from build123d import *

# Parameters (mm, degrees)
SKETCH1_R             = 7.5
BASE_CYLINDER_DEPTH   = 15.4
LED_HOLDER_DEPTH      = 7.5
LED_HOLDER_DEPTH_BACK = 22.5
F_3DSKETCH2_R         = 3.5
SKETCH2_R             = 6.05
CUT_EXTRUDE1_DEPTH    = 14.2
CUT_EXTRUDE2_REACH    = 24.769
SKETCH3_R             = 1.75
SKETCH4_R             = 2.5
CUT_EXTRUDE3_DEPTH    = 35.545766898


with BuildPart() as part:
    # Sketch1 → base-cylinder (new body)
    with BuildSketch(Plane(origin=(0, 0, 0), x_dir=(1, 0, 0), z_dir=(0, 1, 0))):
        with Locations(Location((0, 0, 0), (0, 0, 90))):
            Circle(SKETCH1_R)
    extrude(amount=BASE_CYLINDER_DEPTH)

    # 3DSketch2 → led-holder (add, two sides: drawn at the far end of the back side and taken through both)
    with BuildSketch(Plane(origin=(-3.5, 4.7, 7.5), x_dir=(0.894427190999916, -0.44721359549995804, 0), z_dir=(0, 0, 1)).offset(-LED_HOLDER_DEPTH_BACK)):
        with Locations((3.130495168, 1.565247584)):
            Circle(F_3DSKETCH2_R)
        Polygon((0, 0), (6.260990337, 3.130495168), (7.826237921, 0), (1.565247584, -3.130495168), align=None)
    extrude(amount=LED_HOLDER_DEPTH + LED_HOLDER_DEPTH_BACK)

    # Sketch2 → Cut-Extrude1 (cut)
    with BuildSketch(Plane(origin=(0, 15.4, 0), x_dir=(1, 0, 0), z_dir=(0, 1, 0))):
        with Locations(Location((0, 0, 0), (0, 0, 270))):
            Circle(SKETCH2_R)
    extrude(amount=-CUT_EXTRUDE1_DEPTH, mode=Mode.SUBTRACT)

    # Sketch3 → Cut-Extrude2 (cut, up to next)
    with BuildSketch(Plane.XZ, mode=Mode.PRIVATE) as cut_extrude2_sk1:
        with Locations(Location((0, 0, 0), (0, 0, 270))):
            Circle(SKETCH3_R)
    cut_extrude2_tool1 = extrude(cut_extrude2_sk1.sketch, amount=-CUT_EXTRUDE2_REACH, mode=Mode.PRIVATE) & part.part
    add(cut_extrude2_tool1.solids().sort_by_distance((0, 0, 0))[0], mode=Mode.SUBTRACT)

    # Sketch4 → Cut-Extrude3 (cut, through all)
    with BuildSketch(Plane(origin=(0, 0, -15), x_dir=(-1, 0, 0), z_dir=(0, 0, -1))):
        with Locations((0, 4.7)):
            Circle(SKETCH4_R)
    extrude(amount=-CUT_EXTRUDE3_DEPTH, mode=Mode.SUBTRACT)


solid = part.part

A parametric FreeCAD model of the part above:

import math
import FreeCAD as App
import Part
import Sketcher
from FreeCAD import Vector
Q = App.Units.Quantity

doc = App.newDocument("Part")
body = doc.addObject("PartDesign::Body", "Body")

sketch1 = body.newObject("Sketcher::SketchObject", "Sketch")
sketch1.AttachmentSupport = (doc.getObject("XZ_Plane"), [""])
sketch1.MapMode = "FlatFace"
sketch1.addGeometry(Part.Circle(Vector(0, 0, 0), Vector(0, 0, 1), 7.5), False)
sketch1.addConstraint([
    Sketcher.Constraint("Coincident", 0, 3, -1, 1),
    Sketcher.Constraint("Diameter", 0, Q("15 mm")),
])
pad1 = body.newObject("PartDesign::Pad", "Pad")
pad1.Profile = sketch1
pad1.Length = 15.4
pad1.Reversed = True

sketch2 = body.newObject("Sketcher::SketchObject", "Sketch001")
sketch2.AttachmentSupport = (doc.getObject("XY_Plane"), [""])
sketch2.MapMode = "FlatFace"
sketch2.AttachmentOffset = App.Placement(Vector(0, 0, 7.5), App.Rotation())
sketch2.addGeometry([
    Part.LineSegment(Vector(3.5, 1.2, 0), Vector(3.5, 4.7, 0)),
    Part.ArcOfCircle(Part.Circle(Vector(0, 4.7, 0), Vector(0, 0, 1), 3.5), math.radians(0), math.radians(180)),
    Part.LineSegment(Vector(-3.5, 4.7, 0), Vector(-3.5, 1.2, 0)),
    Part.LineSegment(Vector(-3.5, 1.2, 0), Vector(3.5, 1.2, 0)),
], False)
sketch2.addConstraint([
    Sketcher.Constraint("Tangent", 0, 2, 1, 1),
    Sketcher.Constraint("Tangent", 1, 2, 2, 1),
    Sketcher.Constraint("Coincident", 2, 2, 3, 1),
    Sketcher.Constraint("Coincident", 3, 2, 0, 1),
    Sketcher.Constraint("Vertical", 0),
    Sketcher.Constraint("Vertical", 2),
    Sketcher.Constraint("Horizontal", 3),
    Sketcher.Constraint("PointOnObject", 1, 3, -2),
    Sketcher.Constraint("Radius", 1, Q("3.5 mm")),
    Sketcher.Constraint("DistanceY", 0, 1, 0, 2, Q("3.5 mm")),
    Sketcher.Constraint("DistanceY", -1, 1, 1, 3, Q("4.7 mm")),
])
pad2 = body.newObject("PartDesign::Pad", "Pad001")
pad2.Profile = sketch2
pad2.Type = "TwoLengths"
pad2.Length = 7.5
pad2.Length2 = 22.5

sketch3 = body.newObject("Sketcher::SketchObject", "Sketch002")
sketch3.AttachmentSupport = (doc.getObject("XZ_Plane"), [""])
sketch3.MapMode = "FlatFace"
sketch3.AttachmentOffset = App.Placement(Vector(0, 0, -15.4), App.Rotation())
sketch3.addGeometry(Part.Circle(Vector(0, 0, 0), Vector(0, 0, 1), 6.05), False)
sketch3.addConstraint([
    Sketcher.Constraint("Coincident", 0, 3, -1, 1),
    Sketcher.Constraint("Diameter", 0, Q("12.1 mm")),
])
pocket1 = body.newObject("PartDesign::Pocket", "Pocket")
pocket1.Profile = sketch3
pocket1.Length = 14.2
pocket1.Reversed = True

sketch4 = body.newObject("Sketcher::SketchObject", "Sketch003")
sketch4.AttachmentSupport = (doc.getObject("XZ_Plane"), [""])
sketch4.MapMode = "FlatFace"
sketch4.addGeometry(Part.Circle(Vector(0, 0, 0), Vector(0, 0, 1), 1.75), False)
sketch4.addConstraint([
    Sketcher.Constraint("Coincident", 0, 3, -1, 1),
    Sketcher.Constraint("Diameter", 0, Q("3.5 mm")),
])
pocket2 = body.newObject("PartDesign::Pocket", "Pocket001")
pocket2.Profile = sketch4
pocket2.Type = "UpToFirst"

sketch5 = body.newObject("Sketcher::SketchObject", "Sketch004")
sketch5.AttachmentSupport = (doc.getObject("XY_Plane"), [""])
sketch5.MapMode = "FlatFace"
sketch5.AttachmentOffset = App.Placement(Vector(0, 0, -15), App.Rotation())
sketch5.addGeometry(Part.Circle(Vector(0, 4.7, 0), Vector(0, 0, 1), 2.5), False)
sketch5.addConstraint([
    Sketcher.Constraint("PointOnObject", 0, 3, -2),
    Sketcher.Constraint("Diameter", 0, Q("5 mm")),
    Sketcher.Constraint("DistanceY", -1, 1, 0, 3, Q("4.7 mm")),
])
pocket3 = body.newObject("PartDesign::Pocket", "Pocket002")
pocket3.Profile = sketch5
pocket3.Type = "ThroughAll"
pocket3.Reversed = True

doc.recompute()
